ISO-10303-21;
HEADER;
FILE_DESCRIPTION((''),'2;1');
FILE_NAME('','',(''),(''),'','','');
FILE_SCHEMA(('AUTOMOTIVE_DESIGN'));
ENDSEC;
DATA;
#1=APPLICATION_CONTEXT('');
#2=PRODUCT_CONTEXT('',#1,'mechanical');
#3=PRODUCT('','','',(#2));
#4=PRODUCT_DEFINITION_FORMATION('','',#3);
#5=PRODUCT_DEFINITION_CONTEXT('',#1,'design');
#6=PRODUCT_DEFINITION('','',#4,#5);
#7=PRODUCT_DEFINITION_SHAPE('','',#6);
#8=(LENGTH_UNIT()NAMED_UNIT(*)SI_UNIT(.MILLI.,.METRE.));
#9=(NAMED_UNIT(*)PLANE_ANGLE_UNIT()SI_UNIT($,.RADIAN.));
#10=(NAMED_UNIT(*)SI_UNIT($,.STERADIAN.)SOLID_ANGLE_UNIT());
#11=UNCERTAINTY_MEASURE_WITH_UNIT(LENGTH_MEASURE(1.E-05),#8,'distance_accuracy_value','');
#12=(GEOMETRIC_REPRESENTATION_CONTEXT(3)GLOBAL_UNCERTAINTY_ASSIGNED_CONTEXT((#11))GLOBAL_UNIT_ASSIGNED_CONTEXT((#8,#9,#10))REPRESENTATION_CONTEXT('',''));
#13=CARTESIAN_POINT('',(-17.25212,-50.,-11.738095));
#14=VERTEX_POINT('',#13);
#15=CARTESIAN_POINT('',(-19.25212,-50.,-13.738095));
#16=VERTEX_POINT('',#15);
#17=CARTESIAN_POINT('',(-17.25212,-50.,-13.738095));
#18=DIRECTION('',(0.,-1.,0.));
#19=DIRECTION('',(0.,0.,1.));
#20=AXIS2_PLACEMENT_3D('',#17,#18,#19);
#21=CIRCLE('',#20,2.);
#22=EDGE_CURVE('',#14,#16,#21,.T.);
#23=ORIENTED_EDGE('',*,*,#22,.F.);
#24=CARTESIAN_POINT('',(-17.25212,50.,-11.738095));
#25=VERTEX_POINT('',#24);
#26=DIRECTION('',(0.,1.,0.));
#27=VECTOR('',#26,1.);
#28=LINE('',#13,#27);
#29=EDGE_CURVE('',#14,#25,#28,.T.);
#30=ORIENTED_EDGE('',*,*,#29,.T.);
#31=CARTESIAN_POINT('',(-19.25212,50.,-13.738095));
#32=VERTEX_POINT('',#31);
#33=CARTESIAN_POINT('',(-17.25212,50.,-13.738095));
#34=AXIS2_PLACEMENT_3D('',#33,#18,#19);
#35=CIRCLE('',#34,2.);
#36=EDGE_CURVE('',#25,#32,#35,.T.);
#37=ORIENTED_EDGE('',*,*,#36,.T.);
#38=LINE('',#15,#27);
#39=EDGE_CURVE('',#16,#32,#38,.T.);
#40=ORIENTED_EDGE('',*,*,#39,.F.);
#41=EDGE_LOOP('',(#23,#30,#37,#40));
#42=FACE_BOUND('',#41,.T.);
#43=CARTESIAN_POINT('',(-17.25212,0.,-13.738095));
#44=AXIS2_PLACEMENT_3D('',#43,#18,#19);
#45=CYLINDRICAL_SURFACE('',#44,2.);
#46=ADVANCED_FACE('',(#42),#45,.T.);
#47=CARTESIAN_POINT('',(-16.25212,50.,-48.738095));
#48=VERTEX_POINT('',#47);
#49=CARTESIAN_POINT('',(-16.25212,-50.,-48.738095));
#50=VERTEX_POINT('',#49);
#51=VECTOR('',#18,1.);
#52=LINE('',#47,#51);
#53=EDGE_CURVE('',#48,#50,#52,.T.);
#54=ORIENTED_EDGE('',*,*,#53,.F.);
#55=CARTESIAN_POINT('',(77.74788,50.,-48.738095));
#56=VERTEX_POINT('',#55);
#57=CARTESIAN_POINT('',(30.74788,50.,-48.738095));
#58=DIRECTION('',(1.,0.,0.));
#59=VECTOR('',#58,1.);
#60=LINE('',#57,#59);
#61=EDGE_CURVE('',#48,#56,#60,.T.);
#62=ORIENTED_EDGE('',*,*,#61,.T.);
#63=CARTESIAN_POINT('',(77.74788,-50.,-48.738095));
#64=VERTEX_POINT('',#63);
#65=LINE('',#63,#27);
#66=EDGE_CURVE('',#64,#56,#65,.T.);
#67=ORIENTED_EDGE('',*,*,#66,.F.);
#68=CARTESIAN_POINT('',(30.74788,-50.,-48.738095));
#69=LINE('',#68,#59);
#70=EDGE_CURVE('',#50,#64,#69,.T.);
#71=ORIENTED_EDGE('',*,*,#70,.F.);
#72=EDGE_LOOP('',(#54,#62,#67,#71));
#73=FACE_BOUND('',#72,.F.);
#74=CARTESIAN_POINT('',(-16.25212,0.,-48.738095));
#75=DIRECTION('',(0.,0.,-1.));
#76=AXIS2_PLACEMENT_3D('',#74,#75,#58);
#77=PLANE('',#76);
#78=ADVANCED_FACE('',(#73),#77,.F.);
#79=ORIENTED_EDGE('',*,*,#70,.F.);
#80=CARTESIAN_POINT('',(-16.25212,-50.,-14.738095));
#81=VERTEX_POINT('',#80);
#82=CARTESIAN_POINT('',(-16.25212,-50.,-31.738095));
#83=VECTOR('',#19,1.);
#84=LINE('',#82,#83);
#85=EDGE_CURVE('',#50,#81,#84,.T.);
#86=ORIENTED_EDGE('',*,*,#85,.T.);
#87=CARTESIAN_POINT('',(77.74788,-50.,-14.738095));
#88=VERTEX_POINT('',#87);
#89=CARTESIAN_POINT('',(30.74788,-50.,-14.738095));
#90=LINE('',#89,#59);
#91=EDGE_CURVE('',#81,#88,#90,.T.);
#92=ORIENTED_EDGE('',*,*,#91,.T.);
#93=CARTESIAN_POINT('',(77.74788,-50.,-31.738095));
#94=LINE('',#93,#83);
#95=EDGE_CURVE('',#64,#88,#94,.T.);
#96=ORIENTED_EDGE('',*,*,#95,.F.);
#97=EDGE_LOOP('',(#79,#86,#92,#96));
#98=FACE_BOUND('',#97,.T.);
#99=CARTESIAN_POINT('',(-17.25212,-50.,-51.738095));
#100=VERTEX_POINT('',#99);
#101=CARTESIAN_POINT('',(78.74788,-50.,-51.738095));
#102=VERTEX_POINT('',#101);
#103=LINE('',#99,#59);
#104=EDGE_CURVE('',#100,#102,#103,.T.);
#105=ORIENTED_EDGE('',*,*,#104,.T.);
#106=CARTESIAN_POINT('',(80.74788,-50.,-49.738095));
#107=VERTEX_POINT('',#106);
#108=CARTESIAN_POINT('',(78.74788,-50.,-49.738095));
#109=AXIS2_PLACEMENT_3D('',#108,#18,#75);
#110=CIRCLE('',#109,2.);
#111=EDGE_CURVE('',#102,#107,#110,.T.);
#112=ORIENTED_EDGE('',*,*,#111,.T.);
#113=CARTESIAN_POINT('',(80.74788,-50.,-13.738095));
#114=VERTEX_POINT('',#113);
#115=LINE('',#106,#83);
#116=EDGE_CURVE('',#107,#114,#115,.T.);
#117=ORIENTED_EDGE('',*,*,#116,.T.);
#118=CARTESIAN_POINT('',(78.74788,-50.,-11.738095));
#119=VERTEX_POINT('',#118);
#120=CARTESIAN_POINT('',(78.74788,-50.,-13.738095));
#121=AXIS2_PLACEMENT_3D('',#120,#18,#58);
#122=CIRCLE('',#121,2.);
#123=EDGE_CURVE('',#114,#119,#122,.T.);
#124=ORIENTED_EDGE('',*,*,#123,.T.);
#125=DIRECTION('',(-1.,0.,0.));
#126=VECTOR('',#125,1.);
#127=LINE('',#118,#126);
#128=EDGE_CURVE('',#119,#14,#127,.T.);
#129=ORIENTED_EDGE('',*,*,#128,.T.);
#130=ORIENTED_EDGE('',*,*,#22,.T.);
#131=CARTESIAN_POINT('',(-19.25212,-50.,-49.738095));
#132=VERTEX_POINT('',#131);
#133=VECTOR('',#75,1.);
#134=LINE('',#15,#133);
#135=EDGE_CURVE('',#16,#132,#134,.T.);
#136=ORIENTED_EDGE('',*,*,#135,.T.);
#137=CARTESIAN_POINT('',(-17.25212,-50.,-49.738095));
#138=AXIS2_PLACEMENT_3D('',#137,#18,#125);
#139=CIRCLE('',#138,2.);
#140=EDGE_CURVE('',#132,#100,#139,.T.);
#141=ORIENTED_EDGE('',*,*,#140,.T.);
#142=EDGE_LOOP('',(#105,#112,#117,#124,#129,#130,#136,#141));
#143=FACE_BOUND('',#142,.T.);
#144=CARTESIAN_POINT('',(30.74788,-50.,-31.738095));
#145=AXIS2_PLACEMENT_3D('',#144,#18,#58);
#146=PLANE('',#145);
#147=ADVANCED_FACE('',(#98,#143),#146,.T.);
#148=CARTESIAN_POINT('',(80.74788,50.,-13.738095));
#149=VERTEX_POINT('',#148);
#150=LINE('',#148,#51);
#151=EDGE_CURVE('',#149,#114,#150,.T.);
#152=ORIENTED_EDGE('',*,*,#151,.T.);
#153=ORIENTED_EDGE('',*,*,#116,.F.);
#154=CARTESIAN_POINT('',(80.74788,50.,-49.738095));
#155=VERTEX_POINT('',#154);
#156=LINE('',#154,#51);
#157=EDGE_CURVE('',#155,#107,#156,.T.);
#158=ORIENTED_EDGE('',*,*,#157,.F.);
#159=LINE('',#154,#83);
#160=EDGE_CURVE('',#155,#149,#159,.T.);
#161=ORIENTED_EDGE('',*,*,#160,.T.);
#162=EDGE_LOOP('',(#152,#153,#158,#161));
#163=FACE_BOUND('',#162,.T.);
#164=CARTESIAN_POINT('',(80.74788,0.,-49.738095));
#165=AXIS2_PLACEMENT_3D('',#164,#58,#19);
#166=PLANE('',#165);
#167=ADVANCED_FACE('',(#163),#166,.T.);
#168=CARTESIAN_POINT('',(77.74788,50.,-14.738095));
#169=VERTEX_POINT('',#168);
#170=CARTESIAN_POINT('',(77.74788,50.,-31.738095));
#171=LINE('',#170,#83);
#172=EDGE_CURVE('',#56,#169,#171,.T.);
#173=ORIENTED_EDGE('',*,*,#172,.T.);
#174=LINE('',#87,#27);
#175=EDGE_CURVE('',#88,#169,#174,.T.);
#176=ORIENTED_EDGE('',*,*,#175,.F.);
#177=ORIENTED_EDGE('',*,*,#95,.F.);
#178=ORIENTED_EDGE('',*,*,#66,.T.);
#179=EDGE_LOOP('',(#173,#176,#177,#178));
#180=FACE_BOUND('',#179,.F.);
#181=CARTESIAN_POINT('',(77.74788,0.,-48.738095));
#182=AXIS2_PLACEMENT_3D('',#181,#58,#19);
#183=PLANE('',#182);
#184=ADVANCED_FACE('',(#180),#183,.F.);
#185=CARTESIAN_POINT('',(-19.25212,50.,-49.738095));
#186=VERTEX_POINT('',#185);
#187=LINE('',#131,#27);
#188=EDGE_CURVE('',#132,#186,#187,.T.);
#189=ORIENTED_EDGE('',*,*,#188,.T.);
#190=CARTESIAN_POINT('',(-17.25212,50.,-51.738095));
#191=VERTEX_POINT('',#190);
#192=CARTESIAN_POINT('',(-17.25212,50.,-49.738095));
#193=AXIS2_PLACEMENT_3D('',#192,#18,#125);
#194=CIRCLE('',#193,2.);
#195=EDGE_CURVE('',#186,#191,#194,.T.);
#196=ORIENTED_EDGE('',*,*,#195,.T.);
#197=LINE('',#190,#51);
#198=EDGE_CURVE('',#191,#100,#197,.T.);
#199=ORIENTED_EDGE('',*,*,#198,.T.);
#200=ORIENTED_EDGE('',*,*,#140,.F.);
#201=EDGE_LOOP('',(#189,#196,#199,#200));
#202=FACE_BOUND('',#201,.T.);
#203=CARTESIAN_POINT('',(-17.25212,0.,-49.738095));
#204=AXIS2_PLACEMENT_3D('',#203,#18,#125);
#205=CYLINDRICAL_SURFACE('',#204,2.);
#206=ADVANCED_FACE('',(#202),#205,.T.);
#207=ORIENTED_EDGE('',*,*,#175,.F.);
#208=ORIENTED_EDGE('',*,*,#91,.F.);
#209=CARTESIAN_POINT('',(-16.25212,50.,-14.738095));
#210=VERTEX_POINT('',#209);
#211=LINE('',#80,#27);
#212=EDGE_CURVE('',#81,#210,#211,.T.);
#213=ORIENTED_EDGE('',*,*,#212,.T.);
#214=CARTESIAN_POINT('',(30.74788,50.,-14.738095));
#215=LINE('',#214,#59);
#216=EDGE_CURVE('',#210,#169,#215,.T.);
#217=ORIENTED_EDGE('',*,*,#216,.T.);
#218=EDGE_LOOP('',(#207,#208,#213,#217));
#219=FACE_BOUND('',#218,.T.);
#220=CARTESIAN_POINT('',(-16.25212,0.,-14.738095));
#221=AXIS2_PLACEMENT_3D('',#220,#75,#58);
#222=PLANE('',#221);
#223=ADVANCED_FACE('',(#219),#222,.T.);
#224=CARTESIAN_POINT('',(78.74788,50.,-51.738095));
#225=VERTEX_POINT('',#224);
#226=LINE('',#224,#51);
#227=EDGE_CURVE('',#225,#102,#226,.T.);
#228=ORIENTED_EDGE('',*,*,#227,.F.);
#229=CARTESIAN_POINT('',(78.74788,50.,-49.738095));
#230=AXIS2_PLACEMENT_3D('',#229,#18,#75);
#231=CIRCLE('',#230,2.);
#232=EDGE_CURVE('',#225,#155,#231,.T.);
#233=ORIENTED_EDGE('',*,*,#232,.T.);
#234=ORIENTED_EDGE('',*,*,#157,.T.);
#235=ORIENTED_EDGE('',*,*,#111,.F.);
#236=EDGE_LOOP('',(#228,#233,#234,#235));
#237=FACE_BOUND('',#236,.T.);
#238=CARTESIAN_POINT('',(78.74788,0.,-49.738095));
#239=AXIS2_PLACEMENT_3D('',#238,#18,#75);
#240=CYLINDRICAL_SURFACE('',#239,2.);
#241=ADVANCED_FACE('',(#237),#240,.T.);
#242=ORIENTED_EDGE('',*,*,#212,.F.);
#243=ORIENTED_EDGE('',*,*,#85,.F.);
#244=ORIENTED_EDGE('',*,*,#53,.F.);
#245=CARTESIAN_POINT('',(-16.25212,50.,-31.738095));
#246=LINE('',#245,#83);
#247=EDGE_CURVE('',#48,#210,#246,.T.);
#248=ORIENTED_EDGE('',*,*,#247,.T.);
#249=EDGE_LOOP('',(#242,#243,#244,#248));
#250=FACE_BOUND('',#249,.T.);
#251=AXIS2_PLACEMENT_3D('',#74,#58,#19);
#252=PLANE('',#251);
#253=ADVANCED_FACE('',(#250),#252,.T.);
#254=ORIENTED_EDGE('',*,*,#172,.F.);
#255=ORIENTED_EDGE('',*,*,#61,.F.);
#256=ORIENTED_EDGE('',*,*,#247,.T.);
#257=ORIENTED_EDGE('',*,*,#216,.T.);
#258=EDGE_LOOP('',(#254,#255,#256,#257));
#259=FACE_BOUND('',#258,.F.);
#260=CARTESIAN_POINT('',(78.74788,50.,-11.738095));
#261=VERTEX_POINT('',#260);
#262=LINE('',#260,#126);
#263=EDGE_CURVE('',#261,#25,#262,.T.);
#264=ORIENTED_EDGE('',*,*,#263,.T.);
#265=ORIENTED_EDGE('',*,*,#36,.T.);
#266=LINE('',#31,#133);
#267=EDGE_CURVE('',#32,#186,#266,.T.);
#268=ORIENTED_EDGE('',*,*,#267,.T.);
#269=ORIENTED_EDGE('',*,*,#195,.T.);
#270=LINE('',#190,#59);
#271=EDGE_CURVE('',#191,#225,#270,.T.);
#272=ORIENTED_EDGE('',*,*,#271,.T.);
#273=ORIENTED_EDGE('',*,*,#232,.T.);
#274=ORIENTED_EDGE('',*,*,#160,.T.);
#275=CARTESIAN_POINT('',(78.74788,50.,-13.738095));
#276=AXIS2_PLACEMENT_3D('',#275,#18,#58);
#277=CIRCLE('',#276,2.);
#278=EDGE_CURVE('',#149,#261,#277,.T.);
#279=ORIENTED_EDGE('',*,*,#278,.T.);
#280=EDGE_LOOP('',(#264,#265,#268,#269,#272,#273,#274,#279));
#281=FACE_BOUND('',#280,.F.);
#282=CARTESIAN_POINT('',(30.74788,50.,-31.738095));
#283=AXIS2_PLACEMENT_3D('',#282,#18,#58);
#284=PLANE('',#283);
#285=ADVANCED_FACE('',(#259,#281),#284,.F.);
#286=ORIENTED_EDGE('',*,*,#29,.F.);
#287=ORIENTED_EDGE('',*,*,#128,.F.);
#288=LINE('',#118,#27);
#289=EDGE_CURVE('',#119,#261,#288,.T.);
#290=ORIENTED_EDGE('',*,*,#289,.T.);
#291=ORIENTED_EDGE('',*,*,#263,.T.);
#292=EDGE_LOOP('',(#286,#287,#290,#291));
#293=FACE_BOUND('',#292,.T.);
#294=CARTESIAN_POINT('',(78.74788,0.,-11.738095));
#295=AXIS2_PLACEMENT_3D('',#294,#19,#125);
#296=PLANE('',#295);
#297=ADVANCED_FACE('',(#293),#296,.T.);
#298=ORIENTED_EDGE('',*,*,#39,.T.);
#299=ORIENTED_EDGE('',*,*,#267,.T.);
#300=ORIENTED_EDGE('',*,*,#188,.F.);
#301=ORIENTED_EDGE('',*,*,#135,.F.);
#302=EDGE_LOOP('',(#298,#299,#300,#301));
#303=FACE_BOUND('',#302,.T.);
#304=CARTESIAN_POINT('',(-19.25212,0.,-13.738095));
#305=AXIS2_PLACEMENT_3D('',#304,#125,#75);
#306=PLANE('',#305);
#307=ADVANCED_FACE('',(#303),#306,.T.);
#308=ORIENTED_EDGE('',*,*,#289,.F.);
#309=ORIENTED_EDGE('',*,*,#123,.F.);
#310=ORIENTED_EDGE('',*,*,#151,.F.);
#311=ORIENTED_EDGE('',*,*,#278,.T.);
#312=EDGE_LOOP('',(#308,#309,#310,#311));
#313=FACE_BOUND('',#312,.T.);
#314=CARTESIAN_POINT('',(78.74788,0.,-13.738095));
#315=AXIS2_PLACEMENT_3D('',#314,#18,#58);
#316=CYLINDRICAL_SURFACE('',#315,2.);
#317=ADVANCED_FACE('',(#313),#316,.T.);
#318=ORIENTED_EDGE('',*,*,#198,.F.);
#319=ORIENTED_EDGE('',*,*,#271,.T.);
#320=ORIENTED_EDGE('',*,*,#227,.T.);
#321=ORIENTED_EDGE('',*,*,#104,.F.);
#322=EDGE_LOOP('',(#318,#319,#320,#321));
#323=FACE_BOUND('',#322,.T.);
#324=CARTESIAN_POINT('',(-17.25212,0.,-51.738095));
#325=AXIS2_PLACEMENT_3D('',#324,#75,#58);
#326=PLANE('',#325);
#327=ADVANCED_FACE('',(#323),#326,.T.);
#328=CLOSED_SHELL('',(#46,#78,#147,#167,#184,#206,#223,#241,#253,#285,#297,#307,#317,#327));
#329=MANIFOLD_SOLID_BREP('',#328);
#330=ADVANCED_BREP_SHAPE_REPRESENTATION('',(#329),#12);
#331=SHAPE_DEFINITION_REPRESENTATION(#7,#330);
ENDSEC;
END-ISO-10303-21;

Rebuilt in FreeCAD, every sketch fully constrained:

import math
import FreeCAD as App
import Part
import Sketcher

V = App.Vector
Q = App.Units.Quantity


def add_polygon(sketch, points):
    """Adds a closed chain of lines whose ends are joined by coincident constraints."""
    first, n = sketch.GeometryCount, len(points)
    for a, b in zip(points, points[1:] + points[:1]):
        sketch.addGeometry(Part.LineSegment(App.Vector(*a, 0), App.Vector(*b, 0)), False)
    for i in range(n):
        sketch.addConstraint(Sketcher.Constraint("Coincident", first + i, 2, first + (i + 1) % n, 1))

doc = App.newDocument("Part")
body = doc.addObject("PartDesign::Body", "Body")

sketch1 = body.newObject("Sketcher::SketchObject", "Sketch")
sketch1.AttachmentSupport = (doc.getObject("XZ_Plane"), [""])
sketch1.MapMode = "FlatFace"
sketch1.addGeometry(Part.ArcOfCircle(Part.Circle(V(-17.3, -49.7, 0), V(0, 0, 1), 2), math.radians(180), math.radians(270)), False)
sketch1.addGeometry(Part.LineSegment(V(-17.3, -51.7, 0), V(78.7, -51.7, 0)), False)
sketch1.addGeometry(Part.ArcOfCircle(Part.Circle(V(78.7, -49.7, 0), V(0, 0, 1), 2), math.radians(-90), math.radians(0)), False)
sketch1.addGeometry(Part.LineSegment(V(80.7, -49.7, 0), V(80.7, -13.7, 0)), False)
sketch1.addGeometry(Part.ArcOfCircle(Part.Circle(V(78.7, -13.7, 0), V(0, 0, 1), 2), math.radians(0), math.radians(90)), False)
sketch1.addGeometry(Part.LineSegment(V(78.7, -11.7, 0), V(-17.3, -11.7, 0)), False)
sketch1.addGeometry(Part.ArcOfCircle(Part.Circle(V(-17.3, -13.7, 0), V(0, 0, 1), 2), math.radians(90), math.radians(180)), False)
sketch1.addGeometry(Part.LineSegment(V(-19.3, -13.7, 0), V(-19.3, -49.7, 0)), False)
add_polygon(sketch1, [(77.7, -48.7), (-16.3, -48.7), (-16.3, -14.7), (77.7, -14.7)])
sketch1.addConstraint(Sketcher.Constraint("Tangent", 0, 2, 1, 1))
sketch1.addConstraint(Sketcher.Constraint("Tangent", 1, 2, 2, 1))
sketch1.addConstraint(Sketcher.Constraint("Tangent", 2, 2, 3, 1))
sketch1.addConstraint(Sketcher.Constraint("Tangent", 3, 2, 4, 1))
sketch1.addConstraint(Sketcher.Constraint("Tangent", 4, 2, 5, 1))
sketch1.addConstraint(Sketcher.Constraint("Tangent", 5, 2, 6, 1))
sketch1.addConstraint(Sketcher.Constraint("Tangent", 6, 2, 7, 1))
sketch1.addConstraint(Sketcher.Constraint("Tangent", 7, 2, 0, 1))
sketch1.addConstraint(Sketcher.Constraint("Horizontal", 1))
sketch1.addConstraint(Sketcher.Constraint("Vertical", 3))
sketch1.addConstraint(Sketcher.Constraint("Horizontal", 5))
sketch1.addConstraint(Sketcher.Constraint("Vertical", 7))
sketch1.addConstraint(Sketcher.Constraint("Horizontal", 8))
sketch1.addConstraint(Sketcher.Constraint("Vertical", 9))
sketch1.addConstraint(Sketcher.Constraint("Horizontal", 10))
sketch1.addConstraint(Sketcher.Constraint("Vertical", 11))
sketch1.addConstraint(Sketcher.Constraint("Equal", 0, 2))
sketch1.addConstraint(Sketcher.Constraint("Equal", 2, 4))
sketch1.addConstraint(Sketcher.Constraint("Equal", 4, 6))
sketch1.addConstraint(Sketcher.Constraint("Radius", 0, Q("2 mm")))
sketch1.addConstraint(Sketcher.Constraint("DistanceX", 1, 1, 1, 2, Q("96 mm")))
sketch1.addConstraint(Sketcher.Constraint("DistanceX", 8, 2, 8, 1, Q("94 mm")))
sketch1.addConstraint(Sketcher.Constraint("DistanceY", 3, 1, 3, 2, Q("36 mm")))
sketch1.addConstraint(Sketcher.Constraint("DistanceY", 9, 1, 9, 2, Q("34 mm")))
sketch1.addConstraint(Sketcher.Constraint("DistanceX", 0, 3, 8, 2, Q("1 mm")))
sketch1.addConstraint(Sketcher.Constraint("DistanceY", 0, 3, 8, 2, Q("1 mm")))
sketch1.addConstraint(Sketcher.Constraint("DistanceX", 0, 3, -1, 1, Q("17.25212 mm")))
sketch1.addConstraint(Sketcher.Constraint("DistanceY", 0, 3, -1, 1, Q("49.738095 mm")))
pad1 = body.newObject("PartDesign::Pad", "Pad")
pad1.Profile = sketch1
pad1.Length = 100
pad1.Midplane = True
body2 = doc.addObject("PartDesign::Body", "Body001")
doc.recompute()

body2.BaseFeature = body
doc.recompute()
body.Visibility = False

doc.recompute()
